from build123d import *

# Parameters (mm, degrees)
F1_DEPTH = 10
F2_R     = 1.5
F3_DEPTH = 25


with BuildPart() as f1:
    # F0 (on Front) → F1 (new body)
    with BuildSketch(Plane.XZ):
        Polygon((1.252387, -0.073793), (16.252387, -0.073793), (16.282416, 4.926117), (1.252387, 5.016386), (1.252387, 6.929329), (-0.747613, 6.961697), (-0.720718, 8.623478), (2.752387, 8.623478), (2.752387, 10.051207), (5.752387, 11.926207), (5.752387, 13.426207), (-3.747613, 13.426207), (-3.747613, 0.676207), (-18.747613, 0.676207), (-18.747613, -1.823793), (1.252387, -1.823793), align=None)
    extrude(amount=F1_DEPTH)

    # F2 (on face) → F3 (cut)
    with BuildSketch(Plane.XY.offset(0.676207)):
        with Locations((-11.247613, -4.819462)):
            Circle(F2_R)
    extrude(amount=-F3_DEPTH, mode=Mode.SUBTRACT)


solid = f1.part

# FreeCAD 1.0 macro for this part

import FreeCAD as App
import Part
import Sketcher

V = App.Vector


def add_polygon(sketch, points):
    """Adds a closed chain of lines whose ends are joined by coincident constraints."""
    first, n = sketch.GeometryCount, len(points)
    for a, b in zip(points, points[1:] + points[:1]):
        sketch.addGeometry(Part.LineSegment(App.Vector(*a, 0), App.Vector(*b, 0)), False)
    for i in range(n):
        sketch.addConstraint(Sketcher.Constraint("Coincident", first + i, 2, first + (i + 1) % n, 1))

doc = App.newDocument("Part")
body = doc.addObject("PartDesign::Body", "Body")

# Sketch on XZ plane
sketch1 = doc.addObject("Sketcher::SketchObject", "Sketch")
body.addObject(sketch1)
sketch1.AttachmentSupport = (doc.XZ_Plane, [""])
sketch1.MapMode = "FlatFace"
add_polygon(sketch1, [(1.3, -0.1), (16.3, -0.1), (16.3, 4.9), (1.3, 5), (1.3, 6.9), (-0.7, 7), (-0.7, 8.6), (2.8, 8.6), (2.8, 10.1), (5.8, 11.9), (5.8, 13.4), (-3.7, 13.4), (-3.7, 0.7), (-18.7, 0.7), (-18.7, -1.8), (1.3, -1.8)])  # lines 0-15
sketch1.addConstraint(Sketcher.Constraint("Horizontal", 0))
sketch1.addConstraint(Sketcher.Constraint("Vertical", 3))
sketch1.addConstraint(Sketcher.Constraint("Horizontal", 6))
sketch1.addConstraint(Sketcher.Constraint("Vertical", 7))
sketch1.addConstraint(Sketcher.Constraint("Vertical", 9))
sketch1.addConstraint(Sketcher.Constraint("Horizontal", 10))
sketch1.addConstraint(Sketcher.Constraint("Vertical", 11))
sketch1.addConstraint(Sketcher.Constraint("Horizontal", 12))
sketch1.addConstraint(Sketcher.Constraint("Vertical", 13))
sketch1.addConstraint(Sketcher.Constraint("Horizontal", 14))
sketch1.addConstraint(Sketcher.Constraint("Vertical", 15))
sketch1.addConstraint(Sketcher.Constraint("Perpendicular", 1, 2))
sketch1.addConstraint(Sketcher.Constraint("Perpendicular", 4, 5))
sketch1.addConstraint(Sketcher.Constraint("Vertical", 3, 2, 14, 2))
sketch1.addConstraint(Sketcher.Constraint("Equal", 0, 12))
sketch1.addConstraint(Sketcher.Constraint("DistanceX", 0, 1, 0, 2, 15.0))
sketch1.addConstraint(Sketcher.Constraint("DistanceX", 14, 1, 14, 2, 20.0))
sketch1.addConstraint(Sketcher.Constraint("Distance", 1, 5.0))
sketch1.addConstraint(Sketcher.Constraint("DistanceX", 10, 2, 10, 1, 9.5))
sketch1.addConstraint(Sketcher.Constraint("DistanceY", 9, 1, 9, 2, 1.5))
sketch1.addConstraint(Sketcher.Constraint("DistanceY", 13, 2, 13, 1, 2.5))
sketch1.addConstraint(Sketcher.Constraint("DistanceX", 4, 2, 3, 2, 2.0))
sketch1.addConstraint(Sketcher.Constraint("DistanceX", 7, 2, 8, 2, 3.0))
sketch1.addConstraint(Sketcher.Constraint("DistanceY", 11, 2, 11, 1, 12.75))
sketch1.addConstraint(Sketcher.Constraint("DistanceY", 15, 1, 15, 2, 1.75))
sketch1.addConstraint(Sketcher.Constraint("Distance", 5, 1.661999))
sketch1.addConstraint(Sketcher.Constraint("DistanceY", 7, 2, 8, 2, 1.875))
sketch1.addConstraint(Sketcher.Constraint("Distance", 2, 15.0303))
sketch1.addConstraint(Sketcher.Constraint("DistanceY", 7, 1, 7, 2, 1.427729))
sketch1.addConstraint(Sketcher.Constraint("Distance", 4, 2.000262))
sketch1.addConstraint(Sketcher.Constraint("DistanceY", -1, 1, 3, 2, 6.929329))
sketch1.addConstraint(Sketcher.Constraint("DistanceX", -1, 1, 0, 2, 16.252387))
pad1 = doc.addObject("PartDesign::Pad", "Pad")
body.addObject(pad1)
pad1.Profile = sketch1
pad1.Length = 10

# Sketch on XY plane
sketch2 = doc.addObject("Sketcher::SketchObject", "Sketch001")
body.addObject(sketch2)
sketch2.AttachmentSupport = (doc.XY_Plane, [""])
sketch2.MapMode = "FlatFace"
sketch2.AttachmentOffset = App.Placement(V(0, 0, 0.676207), App.Rotation())
sketch2.addGeometry(Part.Circle(V(-11.2, -4.8, 0), V(0, 0, 1), 1.5), False)
sketch2.addConstraint(Sketcher.Constraint("Diameter", 0, 3.0))
sketch2.addConstraint(Sketcher.Constraint("DistanceY", 0, 3, -1, 1, 4.819462))
sketch2.addConstraint(Sketcher.Constraint("DistanceX", 0, 3, -1, 1, 11.247613))
pocket1 = doc.addObject("PartDesign::Pocket", "Pocket")
body.addObject(pocket1)
pocket1.Profile = sketch2
pocket1.Length = 25

doc.recompute()
